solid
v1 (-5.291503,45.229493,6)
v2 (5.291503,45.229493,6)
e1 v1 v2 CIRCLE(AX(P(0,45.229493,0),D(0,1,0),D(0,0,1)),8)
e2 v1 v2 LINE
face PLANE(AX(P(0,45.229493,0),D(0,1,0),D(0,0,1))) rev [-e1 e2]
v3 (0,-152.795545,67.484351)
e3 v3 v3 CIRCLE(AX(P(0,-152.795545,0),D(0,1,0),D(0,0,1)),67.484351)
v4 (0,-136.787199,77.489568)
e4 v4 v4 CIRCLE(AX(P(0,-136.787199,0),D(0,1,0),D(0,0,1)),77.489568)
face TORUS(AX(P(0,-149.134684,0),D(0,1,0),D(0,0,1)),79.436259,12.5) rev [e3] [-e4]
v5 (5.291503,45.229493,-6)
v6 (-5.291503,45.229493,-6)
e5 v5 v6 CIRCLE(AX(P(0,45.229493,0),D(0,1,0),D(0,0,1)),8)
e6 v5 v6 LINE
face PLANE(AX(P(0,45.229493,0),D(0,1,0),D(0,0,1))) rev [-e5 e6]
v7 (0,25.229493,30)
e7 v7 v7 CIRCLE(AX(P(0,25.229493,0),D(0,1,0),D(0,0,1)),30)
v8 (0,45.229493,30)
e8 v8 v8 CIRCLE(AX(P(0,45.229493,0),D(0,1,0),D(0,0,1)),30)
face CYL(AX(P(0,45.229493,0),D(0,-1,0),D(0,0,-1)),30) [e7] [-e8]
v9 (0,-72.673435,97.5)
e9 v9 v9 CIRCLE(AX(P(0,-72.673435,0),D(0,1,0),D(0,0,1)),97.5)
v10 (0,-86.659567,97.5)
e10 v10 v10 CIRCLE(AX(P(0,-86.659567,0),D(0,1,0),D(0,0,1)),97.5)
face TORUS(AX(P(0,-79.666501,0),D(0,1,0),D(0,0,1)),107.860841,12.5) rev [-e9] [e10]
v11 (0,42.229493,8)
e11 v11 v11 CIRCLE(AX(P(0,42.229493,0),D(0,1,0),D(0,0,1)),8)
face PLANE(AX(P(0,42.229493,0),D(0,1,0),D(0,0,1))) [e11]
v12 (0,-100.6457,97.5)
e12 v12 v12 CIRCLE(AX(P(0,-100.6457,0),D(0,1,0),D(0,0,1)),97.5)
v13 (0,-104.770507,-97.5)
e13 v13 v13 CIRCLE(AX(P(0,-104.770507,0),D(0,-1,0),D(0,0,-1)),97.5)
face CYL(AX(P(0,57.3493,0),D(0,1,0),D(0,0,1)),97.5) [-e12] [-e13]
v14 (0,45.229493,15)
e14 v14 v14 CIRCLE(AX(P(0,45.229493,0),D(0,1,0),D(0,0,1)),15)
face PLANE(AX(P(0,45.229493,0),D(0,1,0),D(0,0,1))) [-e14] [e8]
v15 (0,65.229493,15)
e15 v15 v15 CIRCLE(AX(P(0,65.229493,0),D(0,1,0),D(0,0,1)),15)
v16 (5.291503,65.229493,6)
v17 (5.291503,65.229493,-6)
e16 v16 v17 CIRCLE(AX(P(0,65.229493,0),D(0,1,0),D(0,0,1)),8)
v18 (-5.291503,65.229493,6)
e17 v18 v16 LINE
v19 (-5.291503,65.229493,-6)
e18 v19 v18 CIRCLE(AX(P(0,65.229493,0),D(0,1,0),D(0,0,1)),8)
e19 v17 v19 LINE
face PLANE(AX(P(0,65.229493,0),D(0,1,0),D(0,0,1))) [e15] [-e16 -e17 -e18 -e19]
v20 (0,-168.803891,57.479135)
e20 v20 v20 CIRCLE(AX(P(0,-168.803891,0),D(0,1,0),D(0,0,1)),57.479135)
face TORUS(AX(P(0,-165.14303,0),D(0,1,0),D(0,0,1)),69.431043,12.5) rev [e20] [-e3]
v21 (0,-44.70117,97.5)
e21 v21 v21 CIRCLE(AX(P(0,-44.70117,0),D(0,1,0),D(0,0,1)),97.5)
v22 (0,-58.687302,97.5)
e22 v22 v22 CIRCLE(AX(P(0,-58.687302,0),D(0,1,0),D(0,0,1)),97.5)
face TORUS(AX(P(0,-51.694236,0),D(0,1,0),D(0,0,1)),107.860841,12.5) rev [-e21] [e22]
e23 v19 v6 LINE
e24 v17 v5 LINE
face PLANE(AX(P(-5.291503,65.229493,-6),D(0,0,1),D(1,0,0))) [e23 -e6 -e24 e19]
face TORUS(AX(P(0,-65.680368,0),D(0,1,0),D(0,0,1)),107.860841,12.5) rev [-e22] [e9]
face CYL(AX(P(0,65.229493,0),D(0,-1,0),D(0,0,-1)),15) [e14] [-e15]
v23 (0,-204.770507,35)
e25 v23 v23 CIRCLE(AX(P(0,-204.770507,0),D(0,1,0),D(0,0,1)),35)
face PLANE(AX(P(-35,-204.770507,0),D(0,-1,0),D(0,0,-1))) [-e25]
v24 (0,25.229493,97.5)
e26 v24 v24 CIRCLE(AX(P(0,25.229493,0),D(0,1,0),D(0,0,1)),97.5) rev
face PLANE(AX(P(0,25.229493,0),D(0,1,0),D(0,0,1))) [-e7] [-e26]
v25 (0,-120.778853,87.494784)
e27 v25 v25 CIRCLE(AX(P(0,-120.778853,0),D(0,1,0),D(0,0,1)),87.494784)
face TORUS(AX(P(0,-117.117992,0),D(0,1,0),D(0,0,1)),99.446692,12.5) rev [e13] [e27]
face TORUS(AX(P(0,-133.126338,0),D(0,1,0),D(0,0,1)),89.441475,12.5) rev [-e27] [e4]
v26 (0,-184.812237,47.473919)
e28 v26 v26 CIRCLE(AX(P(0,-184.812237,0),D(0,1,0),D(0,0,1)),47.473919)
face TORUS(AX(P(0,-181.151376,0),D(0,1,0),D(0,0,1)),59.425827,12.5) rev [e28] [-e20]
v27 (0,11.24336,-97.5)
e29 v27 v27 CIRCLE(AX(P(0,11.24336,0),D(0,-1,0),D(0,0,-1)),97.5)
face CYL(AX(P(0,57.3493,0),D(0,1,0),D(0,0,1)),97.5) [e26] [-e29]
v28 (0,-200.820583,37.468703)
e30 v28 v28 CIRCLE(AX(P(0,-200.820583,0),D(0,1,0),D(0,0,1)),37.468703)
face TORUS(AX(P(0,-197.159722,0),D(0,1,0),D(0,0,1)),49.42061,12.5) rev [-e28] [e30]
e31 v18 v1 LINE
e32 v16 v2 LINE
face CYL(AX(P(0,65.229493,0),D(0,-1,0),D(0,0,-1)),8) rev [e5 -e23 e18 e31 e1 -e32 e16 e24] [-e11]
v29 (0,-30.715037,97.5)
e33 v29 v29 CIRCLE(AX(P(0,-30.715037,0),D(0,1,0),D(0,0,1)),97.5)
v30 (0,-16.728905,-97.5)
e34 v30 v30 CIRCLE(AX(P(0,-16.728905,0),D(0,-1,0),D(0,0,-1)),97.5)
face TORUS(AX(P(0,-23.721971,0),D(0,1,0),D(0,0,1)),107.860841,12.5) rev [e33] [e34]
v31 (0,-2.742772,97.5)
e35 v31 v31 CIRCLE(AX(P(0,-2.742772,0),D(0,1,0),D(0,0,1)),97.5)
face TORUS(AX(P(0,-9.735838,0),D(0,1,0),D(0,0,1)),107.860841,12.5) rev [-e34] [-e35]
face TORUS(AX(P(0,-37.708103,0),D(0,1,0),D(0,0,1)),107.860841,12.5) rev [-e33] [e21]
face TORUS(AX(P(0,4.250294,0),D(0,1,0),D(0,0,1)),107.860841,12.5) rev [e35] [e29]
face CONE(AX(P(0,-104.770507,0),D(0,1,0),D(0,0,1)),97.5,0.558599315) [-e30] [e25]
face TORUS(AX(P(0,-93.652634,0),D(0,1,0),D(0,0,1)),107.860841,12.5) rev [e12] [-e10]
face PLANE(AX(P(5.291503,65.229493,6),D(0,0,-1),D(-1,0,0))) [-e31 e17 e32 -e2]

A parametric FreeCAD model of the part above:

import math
import FreeCAD as App
import Part
import Sketcher

V = App.Vector
Q = App.Units.Quantity

doc = App.newDocument("Part")
body = doc.addObject("PartDesign::Body", "Body")

# Sketch on XY plane
sketch1 = doc.addObject("Sketcher::SketchObject", "Sketch")
body.addObject(sketch1)
sketch1.AttachmentSupport = (doc.XY_Plane, [""])
sketch1.MapMode = "FlatFace"
sketch1.addGeometry([
    Part.LineSegment(V(0, 45.229493, 0), V(-200, 45.229493, 0)),  # 0
    Part.LineSegment(V(-200, 45.229493, 0), V(-200, -104.770507, 0)),  # 1
    Part.LineSegment(V(-200, -104.770507, 0), V(-137.5, -204.770507, 0)),  # 2
    Part.LineSegment(V(-137.5, -204.770507, 0), V(-117.5, -204.770507, 0)),  # 3
    Part.LineSegment(V(-117.5, -204.770507, 0), V(-180, -104.770507, 0)),  # 4
    Part.LineSegment(V(-180, -104.770507, 0), V(-180, 25.229493, 0)),  # 5
    Part.LineSegment(V(-180, 25.229493, 0), V(-97.5, 25.229493, 0)),  # 6
    Part.LineSegment(V(-97.5, 25.229493, 0), V(-97.5, -104.770507, 0)),  # 7
    Part.LineSegment(V(-97.5, -104.770507, 0), V(-35, -204.770507, 0)),  # 8
    Part.LineSegment(V(-35, -204.770507, 0), V(0, -204.770507, 0)),  # 9
    Part.LineSegment(V(0, -204.770507, 0), V(0, 45.229493, 0)),  # 10
], False)
sketch1.addConstraint([
    Sketcher.Constraint("Coincident", 0, 2, 1, 1),
    Sketcher.Constraint("Coincident", 1, 2, 2, 1),
    Sketcher.Constraint("Coincident", 2, 2, 3, 1),
    Sketcher.Constraint("Coincident", 3, 2, 4, 1),
    Sketcher.Constraint("Coincident", 4, 2, 5, 1),
    Sketcher.Constraint("Coincident", 5, 2, 6, 1),
    Sketcher.Constraint("Coincident", 6, 2, 7, 1),
    Sketcher.Constraint("Coincident", 7, 2, 8, 1),
    Sketcher.Constraint("Coincident", 8, 2, 9, 1),
    Sketcher.Constraint("Coincident", 9, 2, 10, 1),
    Sketcher.Constraint("Coincident", 10, 2, 0, 1),
    Sketcher.Constraint("Horizontal", 0),
    Sketcher.Constraint("Vertical", 1),
    Sketcher.Constraint("Horizontal", 3),
    Sketcher.Constraint("Vertical", 5),
    Sketcher.Constraint("Horizontal", 6),
    Sketcher.Constraint("Vertical", 7),
    Sketcher.Constraint("Horizontal", 9),
    Sketcher.Constraint("Vertical", 10),
    Sketcher.Constraint("PointOnObject", 9, 2, -2),
    Sketcher.Constraint("Parallel", 2, 4),
    Sketcher.Constraint("Parallel", 4, 8),
    Sketcher.Constraint("Horizontal", 1, 2, 4, 2),
    Sketcher.Constraint("Horizontal", 4, 2, 7, 2),
    Sketcher.Constraint("Horizontal", 3, 2, 8, 2),
    Sketcher.Constraint("DistanceX", 0, 2, 0, 1, Q("200 mm")),
    Sketcher.Constraint("DistanceX", 3, 1, 3, 2, Q("20 mm")),
    Sketcher.Constraint("DistanceX", 9, 1, 9, 2, Q("35 mm")),
    Sketcher.Constraint("DistanceY", 1, 2, 1, 1, Q("150 mm")),
    Sketcher.Constraint("DistanceY", 5, 1, 5, 2, Q("130 mm")),
    Sketcher.Constraint("DistanceY", 10, 1, 10, 2, Q("250 mm")),
    Sketcher.Constraint("DistanceX", 6, 1, 6, 2, Q("82.5 mm")),
    Sketcher.Constraint("DistanceY", -1, 1, 0, 2, Q("45.229493 mm")),
])
revolution = doc.addObject("PartDesign::Revolution", "Revolution")
body.addObject(revolution)
revolution.Profile = sketch1
revolution.ReferenceAxis = (sketch1, ["V_Axis"])
revolution.Angle = 360

# Sketch on XY plane
sketch2 = doc.addObject("Sketcher::SketchObject", "Sketch001")
body.addObject(sketch2)
sketch2.AttachmentSupport = (doc.XY_Plane, [""])
sketch2.MapMode = "FlatFace"
sketch2.addGeometry([
    Part.ArcOfCircle(Part.Circle(V(-107.860841, -79.666501, 0), V(0, 0, 1), 12.5), math.radians(-34.017445), math.radians(34.017445)),  # 0
    Part.ArcOfCircle(Part.Circle(V(-107.860841, -65.680368, 0), V(0, 0, 1), 12.5), math.radians(-34.017445), math.radians(34.017445)),  # 1
    Part.ArcOfCircle(Part.Circle(V(-107.860841, -51.694236, 0), V(0, 0, 1), 12.5), math.radians(-34.017445), math.radians(34.017445)),  # 2
    Part.ArcOfCircle(Part.Circle(V(-107.860841, -37.708103, 0), V(0, 0, 1), 12.5), math.radians(-34.017445), math.radians(34.017445)),  # 3
    Part.ArcOfCircle(Part.Circle(V(-107.860841, -23.721971, 0), V(0, 0, 1), 12.5), math.radians(-34.017445), math.radians(34.017445)),  # 4
    Part.ArcOfCircle(Part.Circle(V(-107.860841, -9.735838, 0), V(0, 0, 1), 12.5), math.radians(-34.017445), math.radians(34.017445)),  # 5
    Part.ArcOfCircle(Part.Circle(V(-107.860841, 4.250294, 0), V(0, 0, 1), 12.5), math.radians(-34.017445), math.radians(214.017445)),  # 6
    Part.ArcOfCircle(Part.Circle(V(-107.860841, -9.735838, 0), V(0, 0, 1), 12.5), math.radians(145.982555), math.radians(214.017445)),  # 7
    Part.ArcOfCircle(Part.Circle(V(-107.860841, -23.721971, 0), V(0, 0, 1), 12.5), math.radians(145.982555), math.radians(214.017445)),  # 8
    Part.ArcOfCircle(Part.Circle(V(-107.860841, -37.708103, 0), V(0, 0, 1), 12.5), math.radians(145.982555), math.radians(214.017445)),  # 9
    Part.ArcOfCircle(Part.Circle(V(-107.860841, -51.694236, 0), V(0, 0, 1), 12.5), math.radians(145.982555), math.radians(214.017445)),  # 10
    Part.ArcOfCircle(Part.Circle(V(-107.860841, -65.680368, 0), V(0, 0, 1), 12.5), math.radians(145.982555), math.radians(214.017445)),  # 11
    Part.ArcOfCircle(Part.Circle(V(-107.860841, -79.666501, 0), V(0, 0, 1), 12.5), math.radians(145.982555), math.radians(214.017445)),  # 12
    Part.ArcOfCircle(Part.Circle(V(-107.860841, -93.652634, 0), V(0, 0, 1), 12.5), math.radians(145.982555), math.radians(394.017445)),  # 13
], False)
sketch2.addConstraint([
    Sketcher.Constraint("Coincident", 0, 2, 1, 1),
    Sketcher.Constraint("Coincident", 1, 2, 2, 1),
    Sketcher.Constraint("Coincident", 2, 2, 3, 1),
    Sketcher.Constraint("Coincident", 3, 2, 4, 1),
    Sketcher.Constraint("Coincident", 4, 2, 5, 1),
    Sketcher.Constraint("Coincident", 5, 2, 6, 1),
    Sketcher.Constraint("Coincident", 6, 2, 7, 1),
    Sketcher.Constraint("Coincident", 7, 2, 8, 1),
    Sketcher.Constraint("Coincident", 8, 2, 9, 1),
    Sketcher.Constraint("Coincident", 9, 2, 10, 1),
    Sketcher.Constraint("Coincident", 10, 2, 11, 1),
    Sketcher.Constraint("Coincident", 11, 2, 12, 1),
    Sketcher.Constraint("Coincident", 12, 2, 13, 1),
    Sketcher.Constraint("Coincident", 13, 2, 0, 1),
    Sketcher.Constraint("Coincident", 7, 3, 5, 3),
    Sketcher.Constraint("Coincident", 8, 3, 4, 3),
    Sketcher.Constraint("Coincident", 9, 3, 3, 3),
    Sketcher.Constraint("Coincident", 10, 3, 2, 3),
    Sketcher.Constraint("Coincident", 11, 3, 1, 3),
    Sketcher.Constraint("Coincident", 12, 3, 0, 3),
    Sketcher.Constraint("Equal", 0, 1),
    Sketcher.Constraint("Equal", 1, 2),
    Sketcher.Constraint("Equal", 2, 3),
    Sketcher.Constraint("Equal", 3, 4),
    Sketcher.Constraint("Equal", 4, 5),
    Sketcher.Constraint("Equal", 5, 6),
    Sketcher.Constraint("Equal", 6, 7),
    Sketcher.Constraint("Equal", 7, 8),
    Sketcher.Constraint("Equal", 8, 9),
    Sketcher.Constraint("Equal", 9, 10),
    Sketcher.Constraint("Equal", 10, 11),
    Sketcher.Constraint("Equal", 11, 12),
    Sketcher.Constraint("Equal", 12, 13),
    Sketcher.Constraint("Horizontal", 5, 2, 6, 2),
    Sketcher.Constraint("Horizontal", 4, 2, 7, 2),
    Sketcher.Constraint("Horizontal", 3, 2, 8, 2),
    Sketcher.Constraint("Horizontal", 2, 2, 9, 2),
    Sketcher.Constraint("Horizontal", 1, 2, 10, 2),
    Sketcher.Constraint("Horizontal", 0, 2, 11, 2),
    Sketcher.Constraint("Horizontal", 12, 2, 13, 2),
    Sketcher.Constraint("Vertical", 0, 2, 1, 2),
    Sketcher.Constraint("Vertical", 1, 2, 2, 2),
    Sketcher.Constraint("Vertical", 2, 2, 3, 2),
    Sketcher.Constraint("Vertical", 3, 2, 4, 2),
    Sketcher.Constraint("Vertical", 4, 2, 5, 2),
    Sketcher.Constraint("Vertical", 11, 2, 12, 2),
    Sketcher.Constraint("Radius", 0, Q("12.5 mm")),
    Sketcher.Constraint("DistanceX", 0, 2, -1, 1, Q("97.5 mm")),
    Sketcher.Constraint("DistanceY", 0, 3, -1, 1, Q("79.666501 mm")),
    Sketcher.Constraint("DistanceY", 13, 3, 0, 2, Q("20.979199 mm")),
])
groove = doc.addObject("PartDesign::Groove", "Groove")
body.addObject(groove)
groove.Profile = sketch2
groove.ReferenceAxis = (sketch2, ["V_Axis"])
groove.Angle = 360

# Sketch on XY plane
sketch3 = doc.addObject("Sketcher::SketchObject", "Sketch002")
body.addObject(sketch3)
sketch3.AttachmentSupport = (doc.XY_Plane, [""])
sketch3.MapMode = "FlatFace"
sketch3.addGeometry([
    Part.ArcOfCircle(Part.Circle(V(-59.425827, -181.151376, 0), V(0, 0, 1), 12.5), math.radians(-17.029789), math.radians(81.040555)),  # 0
    Part.ArcOfCircle(Part.Circle(V(-69.431043, -165.14303, 0), V(0, 0, 1), 12.5), math.radians(-17.029789), math.radians(81.040555)),  # 1
    Part.ArcOfCircle(Part.Circle(V(-79.436259, -149.134684, 0), V(0, 0, 1), 12.5), math.radians(-17.029789), math.radians(81.040555)),  # 2
    Part.ArcOfCircle(Part.Circle(V(-89.441475, -133.126338, 0), V(0, 0, 1), 12.5), math.radians(-17.029789), math.radians(81.040555)),  # 3
    Part.ArcOfCircle(Part.Circle(V(-99.446692, -117.117992, 0), V(0, 0, 1), 12.5), math.radians(-17.029789), math.radians(261.040555)),  # 4
    Part.ArcOfCircle(Part.Circle(V(-89.441475, -133.126338, 0), V(0, 0, 1), 12.5), math.radians(162.970211), math.radians(261.040555)),  # 5
    Part.ArcOfCircle(Part.Circle(V(-79.436259, -149.134684, 0), V(0, 0, 1), 12.5), math.radians(162.970211), math.radians(261.040555)),  # 6
    Part.ArcOfCircle(Part.Circle(V(-69.431043, -165.14303, 0), V(0, 0, 1), 12.5), math.radians(162.970211), math.radians(261.040555)),  # 7
    Part.ArcOfCircle(Part.Circle(V(-59.425827, -181.151376, 0), V(0, 0, 1), 12.5), math.radians(162.970211), math.radians(261.040555)),  # 8
    Part.ArcOfCircle(Part.Circle(V(-49.42061, -197.159722, 0), V(0, 0, 1), 12.5), math.radians(162.970211), math.radians(441.040555)),  # 9
], False)
sketch3.addConstraint([
    Sketcher.Constraint("Coincident", 0, 2, 1, 1),
    Sketcher.Constraint("Coincident", 1, 2, 2, 1),
    Sketcher.Constraint("Coincident", 2, 2, 3, 1),
    Sketcher.Constraint("Coincident", 3, 2, 4, 1),
    Sketcher.Constraint("Coincident", 4, 2, 5, 1),
    Sketcher.Constraint("Coincident", 5, 2, 6, 1),
    Sketcher.Constraint("Coincident", 6, 2, 7, 1),
    Sketcher.Constraint("Coincident", 7, 2, 8, 1),
    Sketcher.Constraint("Coincident", 8, 2, 9, 1),
    Sketcher.Constraint("Coincident", 9, 2, 0, 1),
    Sketcher.Constraint("Coincident", 5, 3, 3, 3),
    Sketcher.Constraint("Coincident", 6, 3, 2, 3),
    Sketcher.Constraint("Coincident", 7, 3, 1, 3),
    Sketcher.Constraint("Coincident", 8, 3, 0, 3),
    Sketcher.Constraint("Equal", 0, 1),
    Sketcher.Constraint("Equal", 1, 2),
    Sketcher.Constraint("Equal", 2, 3),
    Sketcher.Constraint("Equal", 3, 4),
    Sketcher.Constraint("Equal", 4, 5),
    Sketcher.Constraint("Equal", 5, 6),
    Sketcher.Constraint("Equal", 6, 7),
    Sketcher.Constraint("Equal", 7, 8),
    Sketcher.Constraint("Equal", 8, 9),
    Sketcher.Constraint("Radius", 0, Q("12.5 mm")),
    Sketcher.Constraint("DistanceY", 2, 2, -1, 1, Q("136.787199 mm")),
    Sketcher.Constraint("DistanceX", 4, 2, 3, 2, Q("13.898599 mm")),
    Sketcher.Constraint("DistanceX", 5, 2, 2, 2, Q("13.898599 mm")),
    Sketcher.Constraint("DistanceX", 6, 2, 1, 2, Q("13.898599 mm")),
    Sketcher.Constraint("DistanceX", 7, 2, 0, 2, Q("13.898599 mm")),
    Sketcher.Constraint("DistanceX", 8, 2, 9, 2, Q("13.898599 mm")),
    Sketcher.Constraint("DistanceY", 1, 3, -1, 1, Q("165.14303 mm")),
    Sketcher.Constraint("DistanceX", 2, 3, -1, 1, Q("79.436259 mm")),
    Sketcher.Constraint("DistanceY", 3, 3, -1, 1, Q("133.126338 mm")),
    Sketcher.Constraint("DistanceX", 4, 3, -1, 1, Q("99.446692 mm")),
    Sketcher.Constraint("DistanceX", 9, 3, -1, 1, Q("49.42061 mm")),
    Sketcher.Constraint("DistanceY", 0, 2, -1, 1, Q("168.803891 mm")),
])
groove2 = doc.addObject("PartDesign::Groove", "Groove001")
body.addObject(groove2)
groove2.Profile = sketch3
groove2.ReferenceAxis = (sketch3, ["V_Axis"])
groove2.Angle = 360

# Sketch on XZ plane
sketch4 = doc.addObject("Sketcher::SketchObject", "Sketch003")
body.addObject(sketch4)
sketch4.AttachmentSupport = (doc.XZ_Plane, [""])
sketch4.MapMode = "FlatFace"
sketch4.AttachmentOffset = App.Placement(V(0, 0, -45.229493), App.Rotation())
sketch4.addGeometry([
    Part.Circle(V(0, 0, 0), V(0, 0, 1), 40),  # 0
    Part.ArcOfCircle(Part.Circle(V(0, 0, 0), V(0, 0, 1), 8), math.radians(129.162926), math.radians(226.343682)),  # 1
    Part.LineSegment(V(-5.522648, -5.787949, 0), V(5.052222, -6.202826, 0)),  # 2
    Part.ArcOfCircle(Part.Circle(V(0, 0, 0), V(0, 0, 1), 8), math.radians(-50.837074), math.radians(46.343682)),  # 3
    Part.LineSegment(V(5.522648, 5.787949, 0), V(-5.052222, 6.202826, 0)),  # 4
], False)
sketch4.addConstraint([
    Sketcher.Constraint("Coincident", 1, 2, 2, 1),
    Sketcher.Constraint("Coincident", 2, 2, 3, 1),
    Sketcher.Constraint("Coincident", 3, 2, 4, 1),
    Sketcher.Constraint("Coincident", 4, 2, 1, 1),
    Sketcher.Constraint("Coincident", 0, 3, -1, 1),
    Sketcher.Constraint("Coincident", 1, 3, -1, 1),
    Sketcher.Constraint("Coincident", 3, 3, -1, 1),
    Sketcher.Constraint("Equal", 1, 3),
    Sketcher.Constraint("Parallel", 2, 4),
    Sketcher.Constraint("Equal", 2, 4),
    Sketcher.Constraint("Diameter", 0, Q("80 mm")),
    Sketcher.Constraint("Radius", 1, Q("8 mm")),
    Sketcher.Constraint("DistanceY", 1, 2, 3, 2, Q("11.575899 mm")),
    Sketcher.Constraint("DistanceX", -1, 1, 2, 2, Q("5.052222 mm")),
])
pad1 = doc.addObject("PartDesign::Pad", "Pad")
body.addObject(pad1)
pad1.Profile = sketch4
pad1.Length = 22
pad1.Reversed = True

# Sketch on XZ plane
sketch5 = doc.addObject("Sketcher::SketchObject", "Sketch004")
body.addObject(sketch5)
sketch5.AttachmentSupport = (doc.XZ_Plane, [""])
sketch5.MapMode = "FlatFace"
sketch5.AttachmentOffset = App.Placement(V(0, 0, -67.229493), App.Rotation())
sketch5.addGeometry([
    Part.Circle(V(0, -25, 0), V(0, 0, 1), 2.5),  # 0
    Part.Circle(V(21.650635, -12.5, 0), V(0, 0, 1), 2.5),  # 1
    Part.Circle(V(21.650635, 12.5, 0), V(0, 0, 1), 2.5),  # 2
    Part.Circle(V(0, 25, 0), V(0, 0, 1), 2.5),  # 3
    Part.Circle(V(-21.650635, 12.5, 0), V(0, 0, 1), 2.5),  # 4
    Part.Circle(V(-21.650635, -12.5, 0), V(0, 0, 1), 2.5),  # 5
], False)
sketch5.addConstraint([
    Sketcher.Constraint("Equal", 0, 1),
    Sketcher.Constraint("Equal", 1, 2),
    Sketcher.Constraint("Equal", 2, 3),
    Sketcher.Constraint("Equal", 3, 4),
    Sketcher.Constraint("Equal", 4, 5),
    Sketcher.Constraint("Symmetric", 0, 3, 3, 3, -1, 1),
    Sketcher.Constraint("Symmetric", 1, 3, 4, 3, -1, 1),
    Sketcher.Constraint("Symmetric", 2, 3, 5, 3, -1, 1),
    Sketcher.Constraint("Symmetric", 2, 3, 4, 3, -2),
    Sketcher.Constraint("PointOnObject", 0, 3, -2),
    Sketcher.Constraint("Diameter", 0, Q("5 mm")),
    Sketcher.Constraint("DistanceY", 0, 3, -1, 1, Q("25 mm")),
    Sketcher.Constraint("DistanceY", 1, 3, 2, 3, Q("25 mm")),
    Sketcher.Constraint("DistanceX", 4, 3, 2, 3, Q("43.30127 mm")),
])
pocket1 = doc.addObject("PartDesign::Pocket", "Pocket")
body.addObject(pocket1)
pocket1.Profile = sketch5
pocket1.Length = 15
pocket1.Reversed = True

# Sketch on XY plane
sketch6 = doc.addObject("Sketcher::SketchObject", "Sketch005")
body.addObject(sketch6)
sketch6.AttachmentSupport = (doc.XY_Plane, [""])
sketch6.MapMode = "FlatFace"
sketch6.addGeometry([
    Part.LineSegment(V(0, 25.229493, 0), V(125.171973, 25.229493, 0)),  # 0
    Part.LineSegment(V(125.171973, 25.229493, 0), V(125.171973, -129.078798, 0)),  # 1
    Part.LineSegment(V(125.171973, -129.078798, 0), V(44.932536, -243.529944, 0)),  # 2
    Part.LineSegment(V(44.932536, -243.529944, 0), V(312.748216, -243.529944, 0)),  # 3
    Part.LineSegment(V(312.748216, -243.529944, 0), V(312.748216, 128.436279, 0)),  # 4
    Part.LineSegment(V(312.748216, 128.436279, 0), V(0, 128.436279, 0)),  # 5
    Part.LineSegment(V(0, 128.436279, 0), V(0, 25.229493, 0)),  # 6
], False)
sketch6.addConstraint([
    Sketcher.Constraint("Coincident", 0, 2, 1, 1),
    Sketcher.Constraint("Coincident", 1, 2, 2, 1),
    Sketcher.Constraint("Coincident", 2, 2, 3, 1),
    Sketcher.Constraint("Coincident", 3, 2, 4, 1),
    Sketcher.Constraint("Coincident", 4, 2, 5, 1),
    Sketcher.Constraint("Coincident", 5, 2, 6, 1),
    Sketcher.Constraint("Coincident", 6, 2, 0, 1),
    Sketcher.Constraint("Horizontal", 0),
    Sketcher.Constraint("Vertical", 1),
    Sketcher.Constraint("Horizontal", 3),
    Sketcher.Constraint("Vertical", 4),
    Sketcher.Constraint("Horizontal", 5),
    Sketcher.Constraint("Vertical", 6),
    Sketcher.Constraint("PointOnObject", 5, 2, -2),
    Sketcher.Constraint("DistanceX", 3, 1, 3, 2, Q("267.81568 mm")),
    Sketcher.Constraint("DistanceY", 1, 2, 1, 1, Q("154.308291 mm")),
    Sketcher.Constraint("DistanceY", 1, 2, -1, 1, Q("129.078798 mm")),
    Sketcher.Constraint("DistanceX", 0, 1, 0, 2, Q("125.171973 mm")),
    Sketcher.Constraint("DistanceX", 5, 2, 5, 1, Q("312.748216 mm")),
    Sketcher.Constraint("DistanceY", 4, 1, 4, 2, Q("371.966222 mm")),
    Sketcher.Constraint("DistanceY", 6, 2, 6, 1, Q("103.206786 mm")),
])
groove3 = doc.addObject("PartDesign::Groove", "Groove002")
body.addObject(groove3)
groove3.Profile = sketch6
groove3.ReferenceAxis = (sketch6, ["V_Axis"])
groove3.Angle = 360

# Sketch on XZ plane
sketch7 = doc.addObject("Sketcher::SketchObject", "Sketch006")
body.addObject(sketch7)
sketch7.AttachmentSupport = (doc.XZ_Plane, [""])
sketch7.MapMode = "FlatFace"
sketch7.AttachmentOffset = App.Placement(V(0, 0, -25.229493), App.Rotation())
sketch7.addGeometry(Part.Circle(V(0, 0, 0), V(0, 0, 1), 30), False)
sketch7.addConstraint([
    Sketcher.Constraint("Coincident", 0, 3, -1, 1),
    Sketcher.Constraint("Diameter", 0, Q("60 mm")),
])
pad2 = doc.addObject("PartDesign::Pad", "Pad001")
body.addObject(pad2)
pad2.Profile = sketch7
pad2.Length = 20
pad2.Reversed = True

# Sketch on XZ plane
sketch8 = doc.addObject("Sketcher::SketchObject", "Sketch007")
body.addObject(sketch8)
sketch8.AttachmentSupport = (doc.XZ_Plane, [""])
sketch8.MapMode = "FlatFace"
sketch8.AttachmentOffset = App.Placement(V(0, 0, -45.229493), App.Rotation())
sketch8.addGeometry([
    Part.Circle(V(0, 0, 0), V(0, 0, 1), 15),  # 0
    Part.ArcOfCircle(Part.Circle(V(0, 0, 0), V(0, 0, 1), 8), math.radians(131.409622), math.radians(228.590378)),  # 1
    Part.LineSegment(V(-5.291503, -6, 0), V(5.291503, -6, 0)),  # 2
    Part.ArcOfCircle(Part.Circle(V(0, 0, 0), V(0, 0, 1), 8), math.radians(-48.590378), math.radians(48.590378)),  # 3
    Part.LineSegment(V(5.291503, 6, 0), V(-5.291503, 6, 0)),  # 4
], False)
sketch8.addConstraint([
    Sketcher.Constraint("Coincident", 1, 2, 2, 1),
    Sketcher.Constraint("Coincident", 2, 2, 3, 1),
    Sketcher.Constraint("Coincident", 3, 2, 4, 1),
    Sketcher.Constraint("Coincident", 4, 2, 1, 1),
    Sketcher.Constraint("Horizontal", 2),
    Sketcher.Constraint("Horizontal", 4),
    Sketcher.Constraint("Coincident", 0, 3, -1, 1),
    Sketcher.Constraint("Coincident", 1, 3, -1, 1),
    Sketcher.Constraint("Coincident", 3, 3, -1, 1),
    Sketcher.Constraint("Equal", 1, 3),
    Sketcher.Constraint("Vertical", 2, 2, 3, 2),
    Sketcher.Constraint("Diameter", 0, Q("30 mm")),
    Sketcher.Constraint("Radius", 1, Q("8 mm")),
    Sketcher.Constraint("DistanceY", 1, 2, -1, 1, Q("6 mm")),
])
pad3 = doc.addObject("PartDesign::Pad", "Pad002")
body.addObject(pad3)
pad3.Profile = sketch8
pad3.Length = 20
pad3.Reversed = True

# Sketch on XZ plane
sketch9 = doc.addObject("Sketcher::SketchObject", "Sketch008")
body.addObject(sketch9)
sketch9.AttachmentSupport = (doc.XZ_Plane, [""])
sketch9.MapMode = "FlatFace"
sketch9.AttachmentOffset = App.Placement(V(0, 0, -42.229493), App.Rotation())
sketch9.addGeometry(Part.Circle(V(0, 0, 0), V(0, 0, 1), 8), False)
sketch9.addConstraint([
    Sketcher.Constraint("Coincident", 0, 3, -1, 1),
    Sketcher.Constraint("Diameter", 0, Q("16 mm")),
])
pocket2 = doc.addObject("PartDesign::Pocket", "Pocket001")
body.addObject(pocket2)
pocket2.Profile = sketch9
pocket2.Length = 3

doc.recompute()
